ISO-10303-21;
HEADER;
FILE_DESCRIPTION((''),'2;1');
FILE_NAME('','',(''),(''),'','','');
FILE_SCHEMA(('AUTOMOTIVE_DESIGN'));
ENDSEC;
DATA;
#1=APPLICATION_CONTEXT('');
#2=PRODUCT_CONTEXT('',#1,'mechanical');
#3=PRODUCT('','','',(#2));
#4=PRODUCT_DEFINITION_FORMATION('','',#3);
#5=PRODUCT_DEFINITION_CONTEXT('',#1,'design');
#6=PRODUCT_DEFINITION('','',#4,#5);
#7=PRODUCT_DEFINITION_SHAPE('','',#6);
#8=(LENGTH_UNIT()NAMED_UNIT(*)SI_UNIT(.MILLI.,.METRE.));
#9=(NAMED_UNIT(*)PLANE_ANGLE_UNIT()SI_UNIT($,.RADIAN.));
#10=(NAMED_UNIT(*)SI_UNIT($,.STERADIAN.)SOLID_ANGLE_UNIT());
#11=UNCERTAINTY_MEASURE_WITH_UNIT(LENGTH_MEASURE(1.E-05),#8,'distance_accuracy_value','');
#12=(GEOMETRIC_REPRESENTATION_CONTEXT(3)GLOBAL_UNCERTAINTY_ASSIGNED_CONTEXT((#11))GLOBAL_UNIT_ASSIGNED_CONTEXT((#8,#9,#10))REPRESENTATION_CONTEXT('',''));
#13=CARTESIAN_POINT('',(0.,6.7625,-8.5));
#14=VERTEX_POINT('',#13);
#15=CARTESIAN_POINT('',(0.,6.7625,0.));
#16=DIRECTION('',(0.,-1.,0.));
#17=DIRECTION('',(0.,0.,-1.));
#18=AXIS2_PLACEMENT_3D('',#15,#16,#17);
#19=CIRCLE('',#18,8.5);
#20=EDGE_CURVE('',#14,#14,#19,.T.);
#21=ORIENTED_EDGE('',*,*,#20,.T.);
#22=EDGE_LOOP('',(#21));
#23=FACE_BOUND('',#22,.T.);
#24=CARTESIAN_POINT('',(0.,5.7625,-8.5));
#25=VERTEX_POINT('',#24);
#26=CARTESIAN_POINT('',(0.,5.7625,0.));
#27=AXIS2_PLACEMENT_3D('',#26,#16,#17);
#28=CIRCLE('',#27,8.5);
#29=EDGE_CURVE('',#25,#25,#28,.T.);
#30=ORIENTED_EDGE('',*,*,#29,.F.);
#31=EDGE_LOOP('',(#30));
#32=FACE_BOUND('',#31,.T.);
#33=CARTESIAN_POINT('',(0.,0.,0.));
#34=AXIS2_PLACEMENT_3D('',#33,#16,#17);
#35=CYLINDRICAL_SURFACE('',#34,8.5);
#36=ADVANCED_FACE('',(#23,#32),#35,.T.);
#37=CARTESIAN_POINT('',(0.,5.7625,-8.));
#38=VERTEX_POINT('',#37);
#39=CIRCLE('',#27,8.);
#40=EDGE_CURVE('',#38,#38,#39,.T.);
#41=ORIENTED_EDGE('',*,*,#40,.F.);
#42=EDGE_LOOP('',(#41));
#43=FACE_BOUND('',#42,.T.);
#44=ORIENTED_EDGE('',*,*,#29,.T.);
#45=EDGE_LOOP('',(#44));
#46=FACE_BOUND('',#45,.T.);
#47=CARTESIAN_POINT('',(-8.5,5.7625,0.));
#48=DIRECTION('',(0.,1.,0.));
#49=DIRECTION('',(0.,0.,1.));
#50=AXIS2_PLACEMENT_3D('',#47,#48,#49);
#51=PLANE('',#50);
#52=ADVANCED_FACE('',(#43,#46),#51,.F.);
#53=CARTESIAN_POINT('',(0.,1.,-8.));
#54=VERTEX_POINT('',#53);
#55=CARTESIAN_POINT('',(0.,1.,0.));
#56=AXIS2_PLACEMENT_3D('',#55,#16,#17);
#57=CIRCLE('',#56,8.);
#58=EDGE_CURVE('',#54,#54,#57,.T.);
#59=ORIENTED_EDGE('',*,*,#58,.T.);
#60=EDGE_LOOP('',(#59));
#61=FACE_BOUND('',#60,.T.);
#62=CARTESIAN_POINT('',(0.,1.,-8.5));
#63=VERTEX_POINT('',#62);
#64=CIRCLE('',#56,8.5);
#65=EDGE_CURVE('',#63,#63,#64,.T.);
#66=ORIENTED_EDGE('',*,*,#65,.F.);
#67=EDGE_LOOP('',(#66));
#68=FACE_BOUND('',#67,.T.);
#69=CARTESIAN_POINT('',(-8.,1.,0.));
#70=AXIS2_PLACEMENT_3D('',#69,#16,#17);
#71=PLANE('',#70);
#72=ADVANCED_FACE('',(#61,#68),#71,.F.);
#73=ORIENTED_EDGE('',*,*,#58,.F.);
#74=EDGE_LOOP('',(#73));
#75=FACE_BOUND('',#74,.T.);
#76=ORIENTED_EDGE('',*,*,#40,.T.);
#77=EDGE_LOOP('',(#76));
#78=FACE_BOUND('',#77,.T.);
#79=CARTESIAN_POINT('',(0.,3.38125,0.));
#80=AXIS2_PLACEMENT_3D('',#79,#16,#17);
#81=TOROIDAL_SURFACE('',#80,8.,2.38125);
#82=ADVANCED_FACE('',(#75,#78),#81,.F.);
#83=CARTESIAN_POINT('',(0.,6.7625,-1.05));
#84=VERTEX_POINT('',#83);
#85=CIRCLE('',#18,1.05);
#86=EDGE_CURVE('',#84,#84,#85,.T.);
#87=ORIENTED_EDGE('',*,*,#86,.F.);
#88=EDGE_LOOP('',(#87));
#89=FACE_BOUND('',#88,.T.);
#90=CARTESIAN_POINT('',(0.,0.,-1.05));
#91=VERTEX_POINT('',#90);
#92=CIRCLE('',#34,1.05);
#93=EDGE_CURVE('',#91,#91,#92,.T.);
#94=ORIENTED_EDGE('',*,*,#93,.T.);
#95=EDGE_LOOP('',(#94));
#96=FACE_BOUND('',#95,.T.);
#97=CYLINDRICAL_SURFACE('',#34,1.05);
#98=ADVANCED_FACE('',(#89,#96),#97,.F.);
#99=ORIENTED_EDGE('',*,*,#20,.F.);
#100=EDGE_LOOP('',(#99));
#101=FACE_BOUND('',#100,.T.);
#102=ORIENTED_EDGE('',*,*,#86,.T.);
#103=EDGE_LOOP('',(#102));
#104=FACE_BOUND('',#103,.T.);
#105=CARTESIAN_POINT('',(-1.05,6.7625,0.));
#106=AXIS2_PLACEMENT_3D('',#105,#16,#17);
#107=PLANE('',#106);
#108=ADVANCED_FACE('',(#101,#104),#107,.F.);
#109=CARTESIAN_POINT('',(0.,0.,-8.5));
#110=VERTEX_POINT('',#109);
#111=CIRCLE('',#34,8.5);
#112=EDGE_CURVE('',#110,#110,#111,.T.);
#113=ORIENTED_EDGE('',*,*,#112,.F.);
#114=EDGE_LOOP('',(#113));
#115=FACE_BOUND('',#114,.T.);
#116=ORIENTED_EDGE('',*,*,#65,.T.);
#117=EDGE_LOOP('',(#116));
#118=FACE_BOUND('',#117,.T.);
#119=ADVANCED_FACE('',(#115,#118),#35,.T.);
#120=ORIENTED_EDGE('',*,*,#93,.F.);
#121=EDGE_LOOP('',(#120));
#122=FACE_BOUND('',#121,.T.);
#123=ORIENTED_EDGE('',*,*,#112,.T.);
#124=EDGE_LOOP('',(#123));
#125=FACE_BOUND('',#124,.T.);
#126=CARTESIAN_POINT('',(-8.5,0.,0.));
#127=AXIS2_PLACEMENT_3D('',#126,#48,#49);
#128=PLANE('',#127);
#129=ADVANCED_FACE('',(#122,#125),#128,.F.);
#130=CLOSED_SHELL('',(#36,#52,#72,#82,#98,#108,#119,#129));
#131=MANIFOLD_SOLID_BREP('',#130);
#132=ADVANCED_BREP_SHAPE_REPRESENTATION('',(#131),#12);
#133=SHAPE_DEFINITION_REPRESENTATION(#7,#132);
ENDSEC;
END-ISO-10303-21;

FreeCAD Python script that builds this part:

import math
import FreeCAD as App
import Part
import Sketcher
from FreeCAD import Vector
Q = App.Units.Quantity

doc = App.newDocument("Part")
body = doc.addObject("PartDesign::Body", "Body")

sketch1 = doc.addObject("Sketcher::SketchObject", "Sketch")
body.addObject(sketch1)
sketch1.AttachmentSupport = (doc.XY_Plane, [""])
sketch1.MapMode = "FlatFace"
sketch1.addGeometry([
    Part.LineSegment(Vector(-1.1, 0, 0), Vector(-1.1, 6.8, 0)),
    Part.LineSegment(Vector(-1.1, 6.8, 0), Vector(-8.5, 6.8, 0)),
    Part.LineSegment(Vector(-8.5, 6.8, 0), Vector(-8.5, 5.8, 0)),
    Part.LineSegment(Vector(-8.5, 5.8, 0), Vector(-8, 5.8, 0)),
    Part.ArcOfCircle(Part.Circle(Vector(-8, 3.4, 0), Vector(0, 0, 1), 2.4), math.radians(-90), math.radians(90)),
    Part.LineSegment(Vector(-8, 1, 0), Vector(-8.5, 1, 0)),
    Part.LineSegment(Vector(-8.5, 1, 0), Vector(-8.5, 0, 0)),
    Part.LineSegment(Vector(-8.5, 0, 0), Vector(-1.1, 0, 0)),
], False)
sketch1.addConstraint([
    Sketcher.Constraint("Coincident", 0, 2, 1, 1),
    Sketcher.Constraint("Coincident", 1, 2, 2, 1),
    Sketcher.Constraint("Coincident", 2, 2, 3, 1),
    Sketcher.Constraint("Tangent", 3, 2, 4, 2),
    Sketcher.Constraint("Tangent", 4, 1, 5, 1),
    Sketcher.Constraint("Coincident", 5, 2, 6, 1),
    Sketcher.Constraint("Coincident", 6, 2, 7, 1),
    Sketcher.Constraint("Coincident", 7, 2, 0, 1),
    Sketcher.Constraint("Vertical", 0),
    Sketcher.Constraint("Horizontal", 1),
    Sketcher.Constraint("Vertical", 2),
    Sketcher.Constraint("Horizontal", 3),
    Sketcher.Constraint("Horizontal", 5),
    Sketcher.Constraint("Vertical", 6),
    Sketcher.Constraint("Horizontal", 7),
    Sketcher.Constraint("PointOnObject", 6, 2, -1),
    Sketcher.Constraint("Vertical", 2, 2, 5, 2),
    Sketcher.Constraint("Equal", 2, 6),
    Sketcher.Constraint("DistanceY", 2, 2, 2, 1, Q("1 mm")),
    Sketcher.Constraint("DistanceX", 3, 1, 3, 2, Q("0.5 mm")),
    Sketcher.Constraint("DistanceX", 4, 3, -1, 1, Q("8 mm")),
    Sketcher.Constraint("DistanceX", 1, 2, 1, 1, Q("7.45 mm")),
    Sketcher.Constraint("Radius", 4, Q("2.38125 mm")),
])
revolution = doc.addObject("PartDesign::Revolution", "Revolution")
body.addObject(revolution)
revolution.Profile = sketch1
revolution.ReferenceAxis = (sketch1, ["V_Axis"])
revolution.Angle = 360

doc.recompute()
